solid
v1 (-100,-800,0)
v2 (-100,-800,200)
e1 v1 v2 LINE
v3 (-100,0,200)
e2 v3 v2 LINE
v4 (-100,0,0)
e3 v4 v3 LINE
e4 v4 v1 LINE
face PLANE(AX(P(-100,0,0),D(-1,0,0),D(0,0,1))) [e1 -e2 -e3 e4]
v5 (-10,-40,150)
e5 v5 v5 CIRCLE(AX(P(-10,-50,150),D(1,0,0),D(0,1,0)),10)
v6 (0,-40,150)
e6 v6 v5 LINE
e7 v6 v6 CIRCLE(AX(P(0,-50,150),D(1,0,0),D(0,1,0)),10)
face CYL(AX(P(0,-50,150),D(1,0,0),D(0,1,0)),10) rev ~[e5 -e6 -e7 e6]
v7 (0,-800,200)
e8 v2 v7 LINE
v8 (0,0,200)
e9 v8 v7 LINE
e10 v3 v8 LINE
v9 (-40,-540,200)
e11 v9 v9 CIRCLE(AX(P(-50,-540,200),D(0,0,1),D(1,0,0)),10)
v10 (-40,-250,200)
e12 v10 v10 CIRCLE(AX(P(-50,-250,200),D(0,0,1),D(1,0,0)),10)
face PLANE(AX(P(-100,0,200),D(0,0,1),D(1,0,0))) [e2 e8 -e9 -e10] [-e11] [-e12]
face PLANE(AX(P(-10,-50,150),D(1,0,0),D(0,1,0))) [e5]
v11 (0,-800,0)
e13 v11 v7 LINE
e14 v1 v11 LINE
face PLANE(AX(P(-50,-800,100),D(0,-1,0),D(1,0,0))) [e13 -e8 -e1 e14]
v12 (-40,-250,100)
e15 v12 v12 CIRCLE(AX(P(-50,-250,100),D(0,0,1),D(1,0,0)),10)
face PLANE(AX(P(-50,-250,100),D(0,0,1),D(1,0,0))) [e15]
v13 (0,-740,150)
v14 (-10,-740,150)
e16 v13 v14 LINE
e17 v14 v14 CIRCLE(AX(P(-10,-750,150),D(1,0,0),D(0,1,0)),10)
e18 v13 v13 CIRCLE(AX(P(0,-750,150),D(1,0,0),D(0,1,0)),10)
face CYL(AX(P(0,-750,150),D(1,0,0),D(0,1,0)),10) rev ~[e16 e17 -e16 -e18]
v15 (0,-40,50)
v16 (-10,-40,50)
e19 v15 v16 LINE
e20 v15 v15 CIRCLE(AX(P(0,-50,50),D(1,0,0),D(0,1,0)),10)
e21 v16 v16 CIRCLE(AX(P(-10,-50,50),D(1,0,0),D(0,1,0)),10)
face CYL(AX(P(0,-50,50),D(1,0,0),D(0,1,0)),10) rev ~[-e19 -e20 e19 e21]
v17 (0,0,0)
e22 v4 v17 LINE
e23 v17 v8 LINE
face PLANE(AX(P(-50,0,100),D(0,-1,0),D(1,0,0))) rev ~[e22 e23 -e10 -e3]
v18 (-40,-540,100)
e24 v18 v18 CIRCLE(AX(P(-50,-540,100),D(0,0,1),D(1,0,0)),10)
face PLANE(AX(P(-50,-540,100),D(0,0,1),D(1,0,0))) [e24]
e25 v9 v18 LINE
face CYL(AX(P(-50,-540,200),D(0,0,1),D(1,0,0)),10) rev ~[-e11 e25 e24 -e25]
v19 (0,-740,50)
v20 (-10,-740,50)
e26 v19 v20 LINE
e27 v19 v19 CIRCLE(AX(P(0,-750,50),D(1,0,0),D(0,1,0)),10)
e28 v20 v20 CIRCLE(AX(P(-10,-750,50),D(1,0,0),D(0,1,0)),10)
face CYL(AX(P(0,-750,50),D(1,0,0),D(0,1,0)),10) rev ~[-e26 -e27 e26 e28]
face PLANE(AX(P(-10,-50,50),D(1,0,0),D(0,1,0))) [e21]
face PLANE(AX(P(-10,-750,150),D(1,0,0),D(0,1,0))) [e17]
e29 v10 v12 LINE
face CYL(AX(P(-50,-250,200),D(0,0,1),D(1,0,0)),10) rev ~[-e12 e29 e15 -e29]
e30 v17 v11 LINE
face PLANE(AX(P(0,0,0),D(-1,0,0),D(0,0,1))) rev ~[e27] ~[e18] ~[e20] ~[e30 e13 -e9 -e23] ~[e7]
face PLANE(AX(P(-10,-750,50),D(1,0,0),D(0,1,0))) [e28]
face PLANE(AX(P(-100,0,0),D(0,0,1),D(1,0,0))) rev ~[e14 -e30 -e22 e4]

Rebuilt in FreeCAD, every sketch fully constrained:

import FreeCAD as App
import Part
import Sketcher
from FreeCAD import Vector


def add_polygon(sketch, points):
    """Adds a closed chain of lines whose ends are joined by coincident constraints."""
    first, n = sketch.GeometryCount, len(points)
    for a, b in zip(points, points[1:] + points[:1]):
        sketch.addGeometry(Part.LineSegment(App.Vector(*a, 0), App.Vector(*b, 0)), False)
    for i in range(n):
        sketch.addConstraint(Sketcher.Constraint("Coincident", first + i, 2, first + (i + 1) % n, 1))

doc = App.newDocument("Part")
body = doc.addObject("PartDesign::Body", "Body")

sketch1 = body.newObject("Sketcher::SketchObject", "Sketch")
sketch1.AttachmentSupport = (doc.getObject("XZ_Plane"), [""])
sketch1.MapMode = "FlatFace"
add_polygon(sketch1, [(-100, 200), (-100, 0), (0, 0), (0, 200)])
sketch1.addConstraint([
    Sketcher.Constraint("Vertical", 0),
    Sketcher.Constraint("Horizontal", 1),
    Sketcher.Constraint("Vertical", 2),
    Sketcher.Constraint("Horizontal", 3),
    Sketcher.Constraint("Coincident", 1, 2, -1, 1),
    Sketcher.Constraint("DistanceX", 1, 1, 1, 2, 100.0),
    Sketcher.Constraint("DistanceY", 0, 2, 0, 1, 200.0),
])
pad1 = body.newObject("PartDesign::Pad", "Pad")
pad1.Profile = sketch1
pad1.Length = 800

sketch2 = body.newObject("Sketcher::SketchObject", "Sketch001")
sketch2.AttachmentSupport = (doc.getObject("YZ_Plane"), [""])
sketch2.MapMode = "FlatFace"
sketch2.addGeometry([
    Part.Circle(Vector(-750, 150, 0), Vector(0, 0, 1), 10),
    Part.Circle(Vector(-750, 50, 0), Vector(0, 0, 1), 10),
    Part.Circle(Vector(-50, 150, 0), Vector(0, 0, 1), 10),
    Part.Circle(Vector(-50, 50, 0), Vector(0, 0, 1), 10),
], False)
sketch2.addConstraint([
    Sketcher.Constraint("Equal", 0, 1),
    Sketcher.Constraint("Equal", 1, 2),
    Sketcher.Constraint("Equal", 2, 3),
    Sketcher.Constraint("Horizontal", 0, 3, 2, 3),
    Sketcher.Constraint("Horizontal", 1, 3, 3, 3),
    Sketcher.Constraint("Vertical", 0, 3, 1, 3),
    Sketcher.Constraint("Vertical", 2, 3, 3, 3),
    Sketcher.Constraint("Diameter", 0, 20.0),
    Sketcher.Constraint("DistanceX", 0, 3, -1, 1, 750.0),
    Sketcher.Constraint("DistanceY", -1, 1, 0, 3, 150.0),
    Sketcher.Constraint("DistanceY", -1, 1, 1, 3, 50.0),
    Sketcher.Constraint("DistanceX", 2, 3, -1, 1, 50.0),
])
pocket1 = body.newObject("PartDesign::Pocket", "Pocket")
pocket1.Profile = sketch2
pocket1.Length = 10

sketch3 = body.newObject("Sketcher::SketchObject", "Sketch002")
sketch3.AttachmentSupport = (doc.getObject("XY_Plane"), [""])
sketch3.MapMode = "FlatFace"
sketch3.AttachmentOffset = App.Placement(Vector(0, 0, 200), App.Rotation())
sketch3.addGeometry([
    Part.Circle(Vector(-50, -250, 0), Vector(0, 0, 1), 10),
    Part.Circle(Vector(-50, -540, 0), Vector(0, 0, 1), 10),
], False)
sketch3.addConstraint([
    Sketcher.Constraint("Equal", 0, 1),
    Sketcher.Constraint("Vertical", 0, 3, 1, 3),
    Sketcher.Constraint("Diameter", 0, 20.0),
    Sketcher.Constraint("DistanceX", 0, 3, -1, 1, 50.0),
    Sketcher.Constraint("DistanceY", 0, 3, -1, 1, 250.0),
    Sketcher.Constraint("DistanceY", 1, 3, -1, 1, 540.0),
])
pocket2 = body.newObject("PartDesign::Pocket", "Pocket001")
pocket2.Profile = sketch3
pocket2.Length = 100

doc.recompute()
